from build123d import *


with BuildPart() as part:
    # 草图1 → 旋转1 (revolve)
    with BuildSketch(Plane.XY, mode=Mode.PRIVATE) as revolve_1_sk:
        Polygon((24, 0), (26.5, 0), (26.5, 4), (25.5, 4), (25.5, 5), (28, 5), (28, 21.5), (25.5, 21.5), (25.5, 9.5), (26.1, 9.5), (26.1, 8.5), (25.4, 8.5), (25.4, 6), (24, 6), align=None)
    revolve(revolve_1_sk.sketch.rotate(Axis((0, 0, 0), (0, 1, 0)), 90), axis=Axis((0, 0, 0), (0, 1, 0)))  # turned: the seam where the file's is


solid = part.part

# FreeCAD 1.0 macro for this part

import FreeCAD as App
import Part
import Sketcher
Q = App.Units.Quantity

doc = App.newDocument("Part")
body = doc.addObject("PartDesign::Body", "Body")

# Sketch on XY plane
sketch1 = body.newObject("Sketcher::SketchObject", "Sketch")
sketch1.AttachmentSupport = (doc.getObject("XY_Plane"), [""])
sketch1.MapMode = "FlatFace"
sketch1.addGeometry([
    Part.LineSegment(App.Vector(24, 0, 0), App.Vector(26.5, 0, 0)),  # 0
    Part.LineSegment(App.Vector(26.5, 0, 0), App.Vector(26.5, 4, 0)),  # 1
    Part.LineSegment(App.Vector(26.5, 4, 0), App.Vector(25.5, 4, 0)),  # 2
    Part.LineSegment(App.Vector(25.5, 4, 0), App.Vector(25.5, 5, 0)),  # 3
    Part.LineSegment(App.Vector(25.5, 5, 0), App.Vector(28, 5, 0)),  # 4
    Part.LineSegment(App.Vector(28, 5, 0), App.Vector(28, 21.5, 0)),  # 5
    Part.LineSegment(App.Vector(28, 21.5, 0), App.Vector(25.5, 21.5, 0)),  # 6
    Part.LineSegment(App.Vector(25.5, 21.5, 0), App.Vector(25.5, 9.5, 0)),  # 7
    Part.LineSegment(App.Vector(25.5, 9.5, 0), App.Vector(26.1, 9.5, 0)),  # 8
    Part.LineSegment(App.Vector(26.1, 9.5, 0), App.Vector(26.1, 8.5, 0)),  # 9
    Part.LineSegment(App.Vector(26.1, 8.5, 0), App.Vector(25.4, 8.5, 0)),  # 10
    Part.LineSegment(App.Vector(25.4, 8.5, 0), App.Vector(25.4, 6, 0)),  # 11
    Part.LineSegment(App.Vector(25.4, 6, 0), App.Vector(24, 6, 0)),  # 12
    Part.LineSegment(App.Vector(24, 6, 0), App.Vector(24, 0, 0)),  # 13
], False)
sketch1.addConstraint([
    Sketcher.Constraint("Coincident", 0, 2, 1, 1),
    Sketcher.Constraint("Coincident", 1, 2, 2, 1),
    Sketcher.Constraint("Coincident", 2, 2, 3, 1),
    Sketcher.Constraint("Coincident", 3, 2, 4, 1),
    Sketcher.Constraint("Coincident", 4, 2, 5, 1),
    Sketcher.Constraint("Coincident", 5, 2, 6, 1),
    Sketcher.Constraint("Coincident", 6, 2, 7, 1),
    Sketcher.Constraint("Coincident", 7, 2, 8, 1),
    Sketcher.Constraint("Coincident", 8, 2, 9, 1),
    Sketcher.Constraint("Coincident", 9, 2, 10, 1),
    Sketcher.Constraint("Coincident", 10, 2, 11, 1),
    Sketcher.Constraint("Coincident", 11, 2, 12, 1),
    Sketcher.Constraint("Coincident", 12, 2, 13, 1),
    Sketcher.Constraint("Coincident", 13, 2, 0, 1),
    Sketcher.Constraint("Horizontal", 0),
    Sketcher.Constraint("Vertical", 1),
    Sketcher.Constraint("Horizontal", 2),
    Sketcher.Constraint("Vertical", 3),
    Sketcher.Constraint("Horizontal", 4),
    Sketcher.Constraint("Vertical", 5),
    Sketcher.Constraint("Horizontal", 6),
    Sketcher.Constraint("Vertical", 7),
    Sketcher.Constraint("Horizontal", 8),
    Sketcher.Constraint("Vertical", 9),
    Sketcher.Constraint("Horizontal", 10),
    Sketcher.Constraint("Vertical", 11),
    Sketcher.Constraint("Horizontal", 12),
    Sketcher.Constraint("Vertical", 13),
    Sketcher.Constraint("PointOnObject", 0, 2, -1),
    Sketcher.Constraint("Vertical", 3, 2, 6, 2),
    Sketcher.Constraint("Equal", 0, 4),
    Sketcher.Constraint("Equal", 2, 3),
    Sketcher.Constraint("Equal", 3, 9),
    Sketcher.Constraint("Equal", 6, 11),
    Sketcher.Constraint("DistanceX", 2, 2, 2, 1, Q("1 mm")),
    Sketcher.Constraint("DistanceY", 1, 1, 1, 2, Q("4 mm")),
    Sketcher.Constraint("DistanceY", 7, 2, 7, 1, Q("12 mm")),
    Sketcher.Constraint("DistanceY", 13, 2, 13, 1, Q("6 mm")),
    Sketcher.Constraint("DistanceX", 0, 1, 0, 2, Q("2.5 mm")),
    Sketcher.Constraint("DistanceX", 8, 1, 8, 2, Q("0.6 mm")),
    Sketcher.Constraint("DistanceX", 10, 2, 10, 1, Q("0.7 mm")),
    Sketcher.Constraint("DistanceX", -1, 1, 4, 2, Q("28 mm")),
])
revolution = body.newObject("PartDesign::Revolution", "Revolution")
revolution.Profile = sketch1
revolution.ReferenceAxis = (sketch1, ["V_Axis"])
revolution.Angle = 360

doc.recompute()
